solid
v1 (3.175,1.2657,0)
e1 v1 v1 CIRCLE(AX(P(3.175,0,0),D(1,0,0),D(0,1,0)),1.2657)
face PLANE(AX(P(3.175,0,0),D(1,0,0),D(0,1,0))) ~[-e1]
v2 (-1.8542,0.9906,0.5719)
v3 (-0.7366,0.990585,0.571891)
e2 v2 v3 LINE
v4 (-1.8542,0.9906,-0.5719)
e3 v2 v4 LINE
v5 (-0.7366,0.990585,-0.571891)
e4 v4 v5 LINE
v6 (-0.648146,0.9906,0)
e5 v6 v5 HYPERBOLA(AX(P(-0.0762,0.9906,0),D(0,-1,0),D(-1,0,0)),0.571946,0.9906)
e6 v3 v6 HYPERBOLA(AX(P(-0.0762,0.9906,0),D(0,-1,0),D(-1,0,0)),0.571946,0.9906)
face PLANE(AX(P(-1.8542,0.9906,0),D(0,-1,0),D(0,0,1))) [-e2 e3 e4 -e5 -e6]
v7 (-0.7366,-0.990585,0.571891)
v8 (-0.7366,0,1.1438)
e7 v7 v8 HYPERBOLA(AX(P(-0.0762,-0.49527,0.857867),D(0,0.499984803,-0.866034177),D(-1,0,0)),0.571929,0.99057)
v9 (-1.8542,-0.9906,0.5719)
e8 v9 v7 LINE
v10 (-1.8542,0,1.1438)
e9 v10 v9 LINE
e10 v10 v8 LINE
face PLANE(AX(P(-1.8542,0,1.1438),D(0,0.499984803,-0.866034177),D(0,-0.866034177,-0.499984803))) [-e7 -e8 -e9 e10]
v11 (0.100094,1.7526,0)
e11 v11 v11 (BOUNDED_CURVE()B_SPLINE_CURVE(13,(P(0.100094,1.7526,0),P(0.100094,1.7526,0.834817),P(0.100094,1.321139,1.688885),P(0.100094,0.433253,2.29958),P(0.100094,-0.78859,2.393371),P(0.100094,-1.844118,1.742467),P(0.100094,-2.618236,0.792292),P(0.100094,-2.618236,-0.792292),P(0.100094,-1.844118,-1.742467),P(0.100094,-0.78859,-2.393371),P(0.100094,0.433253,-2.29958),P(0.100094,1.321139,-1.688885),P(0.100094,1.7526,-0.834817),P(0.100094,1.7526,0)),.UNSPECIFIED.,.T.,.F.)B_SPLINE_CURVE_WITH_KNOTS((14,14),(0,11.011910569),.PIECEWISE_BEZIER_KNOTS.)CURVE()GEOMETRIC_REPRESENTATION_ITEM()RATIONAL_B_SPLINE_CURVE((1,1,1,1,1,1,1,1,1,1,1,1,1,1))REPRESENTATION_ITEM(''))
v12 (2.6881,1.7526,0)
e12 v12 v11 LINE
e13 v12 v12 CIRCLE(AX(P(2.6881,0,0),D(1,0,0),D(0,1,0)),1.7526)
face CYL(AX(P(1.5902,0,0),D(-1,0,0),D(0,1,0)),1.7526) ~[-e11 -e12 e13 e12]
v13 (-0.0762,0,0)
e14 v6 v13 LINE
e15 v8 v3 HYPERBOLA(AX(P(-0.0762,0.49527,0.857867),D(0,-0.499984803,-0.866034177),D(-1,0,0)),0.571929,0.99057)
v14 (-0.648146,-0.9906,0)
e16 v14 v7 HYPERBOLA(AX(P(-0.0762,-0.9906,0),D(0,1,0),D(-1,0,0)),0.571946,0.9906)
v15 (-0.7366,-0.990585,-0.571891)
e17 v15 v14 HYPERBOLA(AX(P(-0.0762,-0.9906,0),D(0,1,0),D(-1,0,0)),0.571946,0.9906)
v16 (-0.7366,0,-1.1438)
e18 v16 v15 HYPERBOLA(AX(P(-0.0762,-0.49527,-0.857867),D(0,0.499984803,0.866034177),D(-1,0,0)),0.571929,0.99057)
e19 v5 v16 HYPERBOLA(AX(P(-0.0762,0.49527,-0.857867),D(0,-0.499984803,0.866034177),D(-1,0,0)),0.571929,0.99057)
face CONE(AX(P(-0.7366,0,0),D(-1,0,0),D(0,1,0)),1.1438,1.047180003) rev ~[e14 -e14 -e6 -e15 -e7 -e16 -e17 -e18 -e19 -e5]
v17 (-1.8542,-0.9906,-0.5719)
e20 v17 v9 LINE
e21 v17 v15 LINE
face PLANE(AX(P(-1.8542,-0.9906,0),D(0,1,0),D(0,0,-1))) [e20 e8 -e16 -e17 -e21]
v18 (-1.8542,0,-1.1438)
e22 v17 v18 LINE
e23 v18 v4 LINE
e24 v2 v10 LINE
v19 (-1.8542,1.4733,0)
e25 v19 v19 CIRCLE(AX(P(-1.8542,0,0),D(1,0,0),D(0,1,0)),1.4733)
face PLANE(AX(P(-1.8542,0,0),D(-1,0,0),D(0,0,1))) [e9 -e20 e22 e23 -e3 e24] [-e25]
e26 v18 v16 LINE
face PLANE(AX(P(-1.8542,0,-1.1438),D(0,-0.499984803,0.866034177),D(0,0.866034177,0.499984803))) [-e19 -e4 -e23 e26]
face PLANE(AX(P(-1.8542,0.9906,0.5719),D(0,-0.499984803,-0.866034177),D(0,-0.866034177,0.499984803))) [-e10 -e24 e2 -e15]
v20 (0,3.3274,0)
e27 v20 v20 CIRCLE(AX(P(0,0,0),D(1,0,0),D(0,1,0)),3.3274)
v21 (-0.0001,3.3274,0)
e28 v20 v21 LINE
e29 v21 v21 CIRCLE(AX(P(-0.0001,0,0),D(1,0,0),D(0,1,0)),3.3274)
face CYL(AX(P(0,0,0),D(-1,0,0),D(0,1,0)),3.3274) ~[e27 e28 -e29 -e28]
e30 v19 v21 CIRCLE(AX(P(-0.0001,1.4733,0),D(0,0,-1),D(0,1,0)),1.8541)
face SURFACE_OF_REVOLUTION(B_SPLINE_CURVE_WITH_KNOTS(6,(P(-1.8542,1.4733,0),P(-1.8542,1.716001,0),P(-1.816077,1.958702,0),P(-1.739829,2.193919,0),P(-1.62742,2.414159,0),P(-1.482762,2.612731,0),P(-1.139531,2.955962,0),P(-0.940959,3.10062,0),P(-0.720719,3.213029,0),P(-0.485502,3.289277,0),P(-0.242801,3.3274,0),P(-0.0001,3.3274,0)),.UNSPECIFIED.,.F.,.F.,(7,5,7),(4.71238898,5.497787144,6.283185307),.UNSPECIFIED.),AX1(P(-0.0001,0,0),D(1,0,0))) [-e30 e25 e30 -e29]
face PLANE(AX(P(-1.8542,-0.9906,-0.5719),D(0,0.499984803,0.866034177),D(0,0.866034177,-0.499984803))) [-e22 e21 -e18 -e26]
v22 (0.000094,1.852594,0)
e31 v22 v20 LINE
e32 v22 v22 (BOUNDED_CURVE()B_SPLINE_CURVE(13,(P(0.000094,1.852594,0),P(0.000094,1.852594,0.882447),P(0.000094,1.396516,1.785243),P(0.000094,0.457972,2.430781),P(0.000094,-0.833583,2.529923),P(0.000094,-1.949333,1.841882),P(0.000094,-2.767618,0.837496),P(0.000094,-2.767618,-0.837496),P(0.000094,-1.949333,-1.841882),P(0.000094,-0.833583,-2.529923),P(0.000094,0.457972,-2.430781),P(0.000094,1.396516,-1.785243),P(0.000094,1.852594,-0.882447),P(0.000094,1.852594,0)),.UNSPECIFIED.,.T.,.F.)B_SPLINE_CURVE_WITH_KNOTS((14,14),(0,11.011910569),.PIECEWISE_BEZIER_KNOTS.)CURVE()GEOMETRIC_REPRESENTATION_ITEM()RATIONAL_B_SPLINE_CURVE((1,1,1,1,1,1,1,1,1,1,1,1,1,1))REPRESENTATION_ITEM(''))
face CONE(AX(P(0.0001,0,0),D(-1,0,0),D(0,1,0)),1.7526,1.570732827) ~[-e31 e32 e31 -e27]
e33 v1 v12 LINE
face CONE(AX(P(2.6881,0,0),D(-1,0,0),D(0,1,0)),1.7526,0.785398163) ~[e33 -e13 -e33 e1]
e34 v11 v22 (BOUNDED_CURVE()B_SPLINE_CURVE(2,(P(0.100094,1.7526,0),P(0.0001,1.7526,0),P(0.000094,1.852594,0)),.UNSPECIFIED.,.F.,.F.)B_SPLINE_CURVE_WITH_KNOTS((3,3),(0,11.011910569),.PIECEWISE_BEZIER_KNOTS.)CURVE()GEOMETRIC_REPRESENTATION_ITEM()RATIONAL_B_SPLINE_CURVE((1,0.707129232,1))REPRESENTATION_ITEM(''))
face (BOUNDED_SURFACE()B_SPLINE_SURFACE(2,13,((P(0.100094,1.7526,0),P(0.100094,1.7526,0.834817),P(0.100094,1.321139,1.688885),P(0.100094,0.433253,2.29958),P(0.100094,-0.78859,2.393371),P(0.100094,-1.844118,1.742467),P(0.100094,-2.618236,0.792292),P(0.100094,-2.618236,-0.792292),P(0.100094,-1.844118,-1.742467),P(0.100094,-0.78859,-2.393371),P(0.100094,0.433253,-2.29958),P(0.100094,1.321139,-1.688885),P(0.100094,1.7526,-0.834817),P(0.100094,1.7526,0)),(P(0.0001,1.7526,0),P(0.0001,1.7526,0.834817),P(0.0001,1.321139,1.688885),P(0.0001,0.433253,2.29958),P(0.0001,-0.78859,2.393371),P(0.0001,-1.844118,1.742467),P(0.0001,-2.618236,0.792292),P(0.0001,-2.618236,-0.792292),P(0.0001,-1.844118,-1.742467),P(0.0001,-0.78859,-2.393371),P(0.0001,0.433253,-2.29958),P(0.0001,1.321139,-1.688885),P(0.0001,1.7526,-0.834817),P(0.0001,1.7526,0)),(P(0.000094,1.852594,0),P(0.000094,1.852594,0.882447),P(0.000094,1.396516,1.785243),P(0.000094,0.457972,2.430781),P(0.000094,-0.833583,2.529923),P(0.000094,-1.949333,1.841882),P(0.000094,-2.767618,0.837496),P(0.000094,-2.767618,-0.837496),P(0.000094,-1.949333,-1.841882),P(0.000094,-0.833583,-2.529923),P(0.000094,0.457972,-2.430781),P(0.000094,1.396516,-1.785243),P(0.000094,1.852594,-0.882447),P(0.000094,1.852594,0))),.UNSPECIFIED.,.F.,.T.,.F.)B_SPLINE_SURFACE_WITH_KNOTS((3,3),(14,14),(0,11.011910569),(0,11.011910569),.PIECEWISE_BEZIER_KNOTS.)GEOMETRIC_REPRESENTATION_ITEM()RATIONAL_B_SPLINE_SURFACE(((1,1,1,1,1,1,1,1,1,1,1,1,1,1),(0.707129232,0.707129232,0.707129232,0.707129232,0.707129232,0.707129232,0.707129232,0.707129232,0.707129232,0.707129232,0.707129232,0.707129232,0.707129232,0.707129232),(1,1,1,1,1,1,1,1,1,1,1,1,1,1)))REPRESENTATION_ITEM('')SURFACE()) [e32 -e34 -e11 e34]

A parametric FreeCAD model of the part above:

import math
import FreeCAD as App
import Part
import Sketcher
from FreeCAD import Vector
Q = App.Units.Quantity


def edges_at(feature, points):
    """Names of the edges that pass closest to the given points."""
    edges = feature.Shape.Edges
    near = lambda p: min(range(len(edges)), key=lambda i: edges[i].distToShape(Part.Vertex(*p))[0])
    return sorted({f"Edge{near(p) + 1}" for p in points})


def add_polygon(sketch, points):
    """Adds a closed chain of lines whose ends are joined by coincident constraints."""
    first, n = sketch.GeometryCount, len(points)
    for a, b in zip(points, points[1:] + points[:1]):
        sketch.addGeometry(Part.LineSegment(App.Vector(*a, 0), App.Vector(*b, 0)), False)
    for i in range(n):
        sketch.addConstraint(Sketcher.Constraint("Coincident", first + i, 2, first + (i + 1) % n, 1))

doc = App.newDocument("Part")
params = doc.addObject("Spreadsheet::Sheet", "Params")
for row, (alias, value) in enumerate([
    ("sketch1_width", "0.125 in"),
    ("sketch1_width2", "0.073 in"),
    ("sketch1_width3", "0.044 in"),
    ("sketch1_width4", "0.128 in"),
    ("sketch1_height", "0.069 in"),
    ("revolution_angle", "360 deg"),
    ("fillet_radius", "0.0729961 in"),
    ("chamfer_size", "0.4869 mm"),
    ("chamfer_size2", "0.4869 mm"),
    ("fillet2_radius", "0.1 mm"),
], start=1):
    params.set(f"A{row}", alias)
    params.set(f"B{row}", "=" + value)
    params.setAlias(f"B{row}", alias)

body = doc.addObject("PartDesign::Body", "Body")

# Sketch on XY plane
sketch1 = body.newObject("Sketcher::SketchObject", "Sketch")
sketch1.AttachmentSupport = (doc.getObject("XY_Plane"), [""])
sketch1.MapMode = "FlatFace"
add_polygon(sketch1, [(-0.7, 1.1), (-0.1, 0), (3.2, 0), (3.2, 1.8), (0, 1.8), (0, 3.3), (-1.9, 3.3), (-1.9, 1.1)])  # lines 0-7
sketch1.addConstraint([
    Sketcher.Constraint("Horizontal", 1),
    Sketcher.Constraint("Vertical", 2),
    Sketcher.Constraint("Horizontal", 3),
    Sketcher.Constraint("Vertical", 4),
    Sketcher.Constraint("Horizontal", 5),
    Sketcher.Constraint("Vertical", 6),
    Sketcher.Constraint("Horizontal", 7),
    Sketcher.Constraint("PointOnObject", 0, 2, -1),
    Sketcher.Constraint("PointOnObject", 3, 2, -2),
    Sketcher.Constraint("DistanceX", 3, 2, 3, 1, Q("0.125 in")),
    Sketcher.Constraint("DistanceX", 5, 2, 5, 1, Q("0.073 in")),
    Sketcher.Constraint("DistanceX", 7, 1, 7, 2, Q("0.044 in")),
    Sketcher.Constraint("Angle", 0, Q("-59.999 deg")),
    Sketcher.Constraint("DistanceX", 1, 1, 1, 2, Q("0.128 in")),
    Sketcher.Constraint("DistanceY", 2, 1, 2, 2, Q("0.069 in")),
    Sketcher.Constraint("DistanceY", 4, 1, 4, 2, Q("0.062 in")),
])
sketch1.setExpression("Constraints[17]", "Params.sketch1_width")
sketch1.setExpression("Constraints[18]", "Params.sketch1_width2")
sketch1.setExpression("Constraints[19]", "Params.sketch1_width3")
sketch1.setExpression("Constraints[21]", "Params.sketch1_width4")
sketch1.setExpression("Constraints[22]", "Params.sketch1_height")
revolution = body.newObject("PartDesign::Revolution", "Revolution")
revolution.Profile = sketch1
revolution.ReferenceAxis = (sketch1, ["H_Axis"])
revolution.setExpression("Angle", "Params.revolution_angle")

# Sketch on YZ plane
sketch2 = body.newObject("Sketcher::SketchObject", "Sketch001")
sketch2.AttachmentSupport = (doc.getObject("YZ_Plane"), [""])
sketch2.MapMode = "FlatFace"
sketch2.AttachmentOffset = App.Placement(Vector(0, 0, -0.073 * 25.4), App.Rotation())
sketch2.addGeometry([
    Part.LineSegment(Vector(1, 0.6, 0), Vector(0, 1.1, 0)),  # 0
    Part.ArcOfCircle(Part.Circle(Vector(0, 0, 0), Vector(0, 0, 1), 1.1), math.radians(30), math.radians(90)),  # 1
    Part.ArcOfCircle(Part.Circle(Vector(0, 0, 0), Vector(0, 0, 1), 1.1), math.radians(90), math.radians(150)),  # 2
    Part.LineSegment(Vector(0, 1.1, 0), Vector(-1, 0.6, 0)),  # 3
    Part.ArcOfCircle(Part.Circle(Vector(0, 0, 0), Vector(0, 0, 1), 1.1), math.radians(-30), math.radians(30)),  # 4
    Part.LineSegment(Vector(1, 0.6, 0), Vector(1, -0.6, 0)),  # 5
    Part.LineSegment(Vector(-1, 0.6, 0), Vector(-1, -0.6, 0)),  # 6
    Part.ArcOfCircle(Part.Circle(Vector(0, 0, 0), Vector(0, 0, 1), 1.1), math.radians(150), math.radians(210)),  # 7
    Part.LineSegment(Vector(-1, -0.6, 0), Vector(0, -1.1, 0)),  # 8
    Part.ArcOfCircle(Part.Circle(Vector(0, 0, 0), Vector(0, 0, 1), 1.1), math.radians(-150), math.radians(-90)),  # 9
    Part.ArcOfCircle(Part.Circle(Vector(0, 0, 0), Vector(0, 0, 1), 1.1), math.radians(-90), math.radians(-30)),  # 10
    Part.LineSegment(Vector(0, -1.1, 0), Vector(1, -0.6, 0)),  # 11
], False)
sketch2.addConstraint([
    Sketcher.Constraint("Coincident", 0, 1, 1, 1),
    Sketcher.Constraint("Coincident", 1, 2, 0, 2),
    Sketcher.Constraint("Coincident", 2, 1, 3, 1),
    Sketcher.Constraint("Coincident", 3, 2, 2, 2),
    Sketcher.Constraint("Coincident", 4, 1, 5, 2),
    Sketcher.Constraint("Coincident", 5, 1, 4, 2),
    Sketcher.Constraint("Coincident", 6, 1, 7, 1),
    Sketcher.Constraint("Coincident", 7, 2, 6, 2),
    Sketcher.Constraint("Coincident", 8, 1, 9, 1),
    Sketcher.Constraint("Coincident", 9, 2, 8, 2),
    Sketcher.Constraint("Coincident", 10, 1, 11, 1),
    Sketcher.Constraint("Coincident", 11, 2, 10, 2),
    Sketcher.Constraint("Vertical", 5),
    Sketcher.Constraint("Vertical", 6),
    Sketcher.Constraint("Coincident", 1, 3, -1, 1),
    Sketcher.Constraint("Coincident", 2, 3, -1, 1),
    Sketcher.Constraint("Coincident", 4, 3, -1, 1),
    Sketcher.Constraint("Coincident", 7, 3, -1, 1),
    Sketcher.Constraint("Coincident", 9, 3, -1, 1),
    Sketcher.Constraint("Coincident", 10, 3, -1, 1),
    Sketcher.Constraint("Coincident", 2, 1, 1, 2),
    Sketcher.Constraint("Coincident", 5, 1, 0, 1),
    Sketcher.Constraint("Coincident", 6, 1, 3, 2),
    Sketcher.Constraint("Coincident", 8, 1, 7, 2),
    Sketcher.Constraint("Coincident", 10, 1, 9, 2),
    Sketcher.Constraint("PointOnObject", 1, 2, -2),
    Sketcher.Constraint("PointOnObject", 9, 2, -2),
    Sketcher.Constraint("Parallel", 0, 8),
    Sketcher.Constraint("Parallel", 3, 11),
    Sketcher.Constraint("Angle", 0, Q("150.001 deg")),
    Sketcher.Constraint("Radius", 1, Q("1.1438 mm")),
])
pad1 = body.newObject("PartDesign::Pad", "Pad")
pad1.Profile = sketch2
pad1.Type = "UpToFirst"
doc.recompute()

fillet = body.newObject("PartDesign::Fillet", "Fillet")
fillet.Base = (pad1, edges_at(pad1, [(-1.854, -3.327, 0)]))
fillet.setExpression("Radius", "Params.fillet_radius")
doc.recompute()

chamfer = body.newObject("PartDesign::Chamfer", "Chamfer")
chamfer.Base = (fillet, edges_at(fillet, [(3.175, -1.753, 0)]))
chamfer.ChamferType = "Two distances"
chamfer.setExpression("Size", "Params.chamfer_size")
chamfer.setExpression("Size2", "Params.chamfer_size2")
doc.recompute()

fillet2 = body.newObject("PartDesign::Fillet", "Fillet001")
fillet2.Base = (chamfer, edges_at(chamfer, [(0, -1.753, 0)]))
fillet2.setExpression("Radius", "Params.fillet2_radius")

doc.recompute()
